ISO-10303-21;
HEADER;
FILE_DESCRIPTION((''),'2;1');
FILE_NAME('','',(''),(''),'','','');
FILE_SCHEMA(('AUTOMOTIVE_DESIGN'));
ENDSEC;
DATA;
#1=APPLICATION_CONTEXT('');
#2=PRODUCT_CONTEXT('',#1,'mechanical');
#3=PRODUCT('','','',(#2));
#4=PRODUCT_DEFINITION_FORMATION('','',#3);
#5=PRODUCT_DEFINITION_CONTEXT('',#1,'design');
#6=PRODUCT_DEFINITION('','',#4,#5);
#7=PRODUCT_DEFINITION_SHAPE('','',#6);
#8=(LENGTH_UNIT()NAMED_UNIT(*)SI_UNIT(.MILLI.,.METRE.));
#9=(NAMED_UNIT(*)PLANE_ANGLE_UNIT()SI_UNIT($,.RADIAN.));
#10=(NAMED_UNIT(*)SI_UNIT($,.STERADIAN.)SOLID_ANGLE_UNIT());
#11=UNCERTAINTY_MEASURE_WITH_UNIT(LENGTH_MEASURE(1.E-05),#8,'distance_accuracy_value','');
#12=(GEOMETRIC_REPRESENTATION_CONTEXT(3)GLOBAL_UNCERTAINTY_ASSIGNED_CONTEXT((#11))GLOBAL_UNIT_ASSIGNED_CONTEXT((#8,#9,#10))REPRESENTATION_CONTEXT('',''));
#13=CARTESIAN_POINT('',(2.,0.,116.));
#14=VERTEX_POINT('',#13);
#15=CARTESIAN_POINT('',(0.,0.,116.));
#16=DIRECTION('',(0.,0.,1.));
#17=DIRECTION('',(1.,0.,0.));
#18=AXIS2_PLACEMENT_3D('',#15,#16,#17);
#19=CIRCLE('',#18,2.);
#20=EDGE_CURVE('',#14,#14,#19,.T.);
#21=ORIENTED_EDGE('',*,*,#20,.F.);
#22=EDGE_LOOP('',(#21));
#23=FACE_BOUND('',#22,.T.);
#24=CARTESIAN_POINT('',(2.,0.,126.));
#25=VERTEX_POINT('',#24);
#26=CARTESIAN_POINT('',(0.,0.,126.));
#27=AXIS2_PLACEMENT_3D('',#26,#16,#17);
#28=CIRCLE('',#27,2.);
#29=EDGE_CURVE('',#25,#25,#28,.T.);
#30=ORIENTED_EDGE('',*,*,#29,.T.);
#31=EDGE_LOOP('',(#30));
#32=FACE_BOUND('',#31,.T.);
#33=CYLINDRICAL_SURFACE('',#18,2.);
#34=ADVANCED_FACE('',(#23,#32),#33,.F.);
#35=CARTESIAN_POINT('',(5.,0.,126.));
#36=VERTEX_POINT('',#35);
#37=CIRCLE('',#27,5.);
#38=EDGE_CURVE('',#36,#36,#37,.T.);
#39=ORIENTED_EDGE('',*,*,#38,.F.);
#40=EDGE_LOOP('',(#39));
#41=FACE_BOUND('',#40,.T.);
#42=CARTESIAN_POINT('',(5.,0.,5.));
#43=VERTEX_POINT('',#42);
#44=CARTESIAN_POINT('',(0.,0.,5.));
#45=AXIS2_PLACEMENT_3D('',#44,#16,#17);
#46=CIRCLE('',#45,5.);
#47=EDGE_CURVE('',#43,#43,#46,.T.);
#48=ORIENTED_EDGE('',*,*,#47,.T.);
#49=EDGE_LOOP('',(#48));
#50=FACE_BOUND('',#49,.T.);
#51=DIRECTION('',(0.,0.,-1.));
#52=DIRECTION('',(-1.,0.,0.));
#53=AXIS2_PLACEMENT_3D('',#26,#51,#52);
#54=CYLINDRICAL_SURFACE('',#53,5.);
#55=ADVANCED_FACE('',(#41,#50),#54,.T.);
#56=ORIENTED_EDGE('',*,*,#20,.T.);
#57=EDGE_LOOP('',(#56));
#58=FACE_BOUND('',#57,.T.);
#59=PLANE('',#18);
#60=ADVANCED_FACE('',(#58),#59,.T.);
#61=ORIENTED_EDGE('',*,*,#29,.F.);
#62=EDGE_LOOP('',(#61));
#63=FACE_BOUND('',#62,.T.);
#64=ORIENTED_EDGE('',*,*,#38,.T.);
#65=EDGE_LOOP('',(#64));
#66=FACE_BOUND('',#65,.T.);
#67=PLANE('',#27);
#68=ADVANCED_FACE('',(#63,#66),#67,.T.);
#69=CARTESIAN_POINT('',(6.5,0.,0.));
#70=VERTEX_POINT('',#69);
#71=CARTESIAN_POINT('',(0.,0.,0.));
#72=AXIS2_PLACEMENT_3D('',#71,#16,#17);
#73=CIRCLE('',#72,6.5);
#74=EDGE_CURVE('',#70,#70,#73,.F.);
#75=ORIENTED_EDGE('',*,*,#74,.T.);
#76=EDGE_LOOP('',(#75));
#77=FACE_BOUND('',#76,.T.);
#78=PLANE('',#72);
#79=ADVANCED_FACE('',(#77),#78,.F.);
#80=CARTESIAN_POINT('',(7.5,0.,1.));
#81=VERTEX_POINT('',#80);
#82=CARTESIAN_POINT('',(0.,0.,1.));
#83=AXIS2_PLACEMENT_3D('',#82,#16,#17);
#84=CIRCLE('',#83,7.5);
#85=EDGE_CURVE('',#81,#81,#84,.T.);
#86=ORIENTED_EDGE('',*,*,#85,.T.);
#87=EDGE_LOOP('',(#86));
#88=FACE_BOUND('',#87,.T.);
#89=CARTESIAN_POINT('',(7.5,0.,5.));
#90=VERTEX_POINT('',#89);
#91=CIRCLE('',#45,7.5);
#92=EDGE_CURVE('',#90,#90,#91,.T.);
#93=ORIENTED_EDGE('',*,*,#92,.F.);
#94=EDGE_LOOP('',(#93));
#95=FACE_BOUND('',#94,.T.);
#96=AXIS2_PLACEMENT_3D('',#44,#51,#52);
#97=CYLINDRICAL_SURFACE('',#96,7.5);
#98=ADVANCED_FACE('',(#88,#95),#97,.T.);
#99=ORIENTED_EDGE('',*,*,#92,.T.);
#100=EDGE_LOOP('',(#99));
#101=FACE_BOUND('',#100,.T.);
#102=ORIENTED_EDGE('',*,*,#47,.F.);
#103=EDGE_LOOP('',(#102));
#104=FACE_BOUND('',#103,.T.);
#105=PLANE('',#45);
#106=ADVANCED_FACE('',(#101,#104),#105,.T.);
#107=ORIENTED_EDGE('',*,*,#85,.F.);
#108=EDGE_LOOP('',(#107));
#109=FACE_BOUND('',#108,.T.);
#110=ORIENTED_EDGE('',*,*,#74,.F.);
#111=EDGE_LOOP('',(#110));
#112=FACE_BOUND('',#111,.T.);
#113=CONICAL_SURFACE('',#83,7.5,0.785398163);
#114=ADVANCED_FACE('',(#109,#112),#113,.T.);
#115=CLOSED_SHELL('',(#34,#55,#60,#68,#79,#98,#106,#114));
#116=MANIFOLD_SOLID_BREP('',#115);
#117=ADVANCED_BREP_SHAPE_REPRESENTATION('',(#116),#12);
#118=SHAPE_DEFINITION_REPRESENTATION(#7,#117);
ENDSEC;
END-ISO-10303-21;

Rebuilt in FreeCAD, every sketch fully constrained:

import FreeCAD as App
import Part
import Sketcher
from FreeCAD import Vector


def edges_at(feature, points):
    """Names of the edges that pass closest to the given points."""
    edges = feature.Shape.Edges
    near = lambda p: min(range(len(edges)), key=lambda i: edges[i].distToShape(Part.Vertex(*p))[0])
    return sorted({f"Edge{near(p) + 1}" for p in points})

doc = App.newDocument("Part")
params = doc.addObject("Spreadsheet::Sheet", "Params")
for row, (alias, value) in enumerate([
    ("sketch1_diameter", "15 mm"),
    ("pad1_length", "5 mm"),
    ("chamfer_size", "1 mm"),
    ("sketch2_diameter", "10 mm"),
    ("pad2_length", "121 mm"),
    ("sketch3_diameter", "4 mm"),
    ("pocket1_length", "10 mm"),
], start=1):
    params.set(f"A{row}", alias)
    params.set(f"B{row}", "=" + value)
    params.setAlias(f"B{row}", alias)

body = doc.addObject("PartDesign::Body", "Body")

# Sketch on XY plane
sketch1 = doc.addObject("Sketcher::SketchObject", "Sketch")
body.addObject(sketch1)
sketch1.AttachmentSupport = (doc.XY_Plane, [""])
sketch1.MapMode = "FlatFace"
sketch1.addGeometry(Part.Circle(Vector(0, 0, 0), Vector(0, 0, 1), 7.5), False)
sketch1.addConstraint(Sketcher.Constraint("Coincident", 0, 3, -1, 1))
sketch1.addConstraint(Sketcher.Constraint("Diameter", 0, 15.0))
sketch1.setExpression("Constraints[1]", "Params.sketch1_diameter")
pad1 = doc.addObject("PartDesign::Pad", "Pad")
body.addObject(pad1)
pad1.Profile = sketch1
pad1.setExpression("Length", "Params.pad1_length")
doc.recompute()

chamfer = doc.addObject("PartDesign::Chamfer", "Chamfer")
body.addObject(chamfer)
chamfer.Base = (pad1, edges_at(pad1, [(-7.5, 0, 0)]))
chamfer.setExpression("Size", "Params.chamfer_size")

# Sketch on XY plane
sketch2 = doc.addObject("Sketcher::SketchObject", "Sketch001")
body.addObject(sketch2)
sketch2.AttachmentSupport = (doc.XY_Plane, [""])
sketch2.MapMode = "FlatFace"
sketch2.AttachmentOffset = App.Placement(Vector(0, 0, 5), App.Rotation())
sketch2.addGeometry(Part.Circle(Vector(0, 0, 0), Vector(0, 0, 1), 5), False)
sketch2.addConstraint(Sketcher.Constraint("Coincident", 0, 3, -1, 1))
sketch2.addConstraint(Sketcher.Constraint("Diameter", 0, 10.0))
sketch2.setExpression("Constraints[1]", "Params.sketch2_diameter")
pad2 = doc.addObject("PartDesign::Pad", "Pad001")
body.addObject(pad2)
pad2.Profile = sketch2
pad2.setExpression("Length", "Params.pad2_length")

# Sketch on XY plane
sketch3 = doc.addObject("Sketcher::SketchObject", "Sketch002")
body.addObject(sketch3)
sketch3.AttachmentSupport = (doc.XY_Plane, [""])
sketch3.MapMode = "FlatFace"
sketch3.AttachmentOffset = App.Placement(Vector(0, 0, 126), App.Rotation())
sketch3.addGeometry(Part.Circle(Vector(0, 0, 0), Vector(0, 0, 1), 2), False)
sketch3.addConstraint(Sketcher.Constraint("Coincident", 0, 3, -1, 1))
sketch3.addConstraint(Sketcher.Constraint("Diameter", 0, 4.0))
sketch3.setExpression("Constraints[1]", "Params.sketch3_diameter")
pocket1 = doc.addObject("PartDesign::Pocket", "Pocket")
body.addObject(pocket1)
pocket1.Profile = sketch3
pocket1.setExpression("Length", "Params.pocket1_length")

doc.recompute()
